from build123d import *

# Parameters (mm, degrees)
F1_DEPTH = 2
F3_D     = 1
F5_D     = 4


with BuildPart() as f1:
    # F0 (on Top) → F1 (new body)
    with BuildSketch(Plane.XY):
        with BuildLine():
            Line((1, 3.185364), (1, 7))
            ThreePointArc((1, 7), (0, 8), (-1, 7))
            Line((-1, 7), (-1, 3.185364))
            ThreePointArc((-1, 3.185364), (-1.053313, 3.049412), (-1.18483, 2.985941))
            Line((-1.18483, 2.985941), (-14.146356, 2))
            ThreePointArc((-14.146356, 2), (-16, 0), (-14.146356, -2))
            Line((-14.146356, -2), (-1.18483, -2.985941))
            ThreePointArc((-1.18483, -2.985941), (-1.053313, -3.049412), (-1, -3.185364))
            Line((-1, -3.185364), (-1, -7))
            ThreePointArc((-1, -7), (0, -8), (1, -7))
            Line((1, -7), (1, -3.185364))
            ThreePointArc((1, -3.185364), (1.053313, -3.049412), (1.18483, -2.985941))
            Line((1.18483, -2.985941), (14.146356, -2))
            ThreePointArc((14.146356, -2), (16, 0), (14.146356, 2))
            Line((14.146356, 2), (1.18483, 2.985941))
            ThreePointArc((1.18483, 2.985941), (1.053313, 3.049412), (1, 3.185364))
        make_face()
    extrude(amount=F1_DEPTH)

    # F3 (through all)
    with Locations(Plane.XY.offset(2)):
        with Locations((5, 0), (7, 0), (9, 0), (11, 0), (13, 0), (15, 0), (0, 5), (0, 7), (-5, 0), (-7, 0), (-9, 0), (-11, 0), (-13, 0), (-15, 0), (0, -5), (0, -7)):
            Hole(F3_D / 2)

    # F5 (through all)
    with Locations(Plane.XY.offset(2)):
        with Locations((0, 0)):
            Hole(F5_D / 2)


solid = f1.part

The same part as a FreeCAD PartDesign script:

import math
import FreeCAD as App
import Part
import Sketcher
from FreeCAD import Vector
Q = App.Units.Quantity

doc = App.newDocument("Part")
body = doc.addObject("PartDesign::Body", "Body")

# Sketch on XY plane
sketch1 = doc.addObject("Sketcher::SketchObject", "Sketch")
body.addObject(sketch1)
sketch1.AttachmentSupport = (doc.XY_Plane, [""])
sketch1.MapMode = "FlatFace"
sketch1.addGeometry([
    Part.LineSegment(Vector(1, 3.185364, 0), Vector(1, 7, 0)),  # 0
    Part.ArcOfCircle(Part.Circle(Vector(0, 7, 0), Vector(0, 0, 1), 1), math.radians(0), math.radians(180)),  # 1
    Part.LineSegment(Vector(-1, 7, 0), Vector(-1, 3.185364, 0)),  # 2
    Part.ArcOfCircle(Part.Circle(Vector(-1.199998, 3.185363, 0), Vector(0, 0, 1), 0.199998), math.radians(-85.650399), math.radians(0.000219)),  # 3
    Part.LineSegment(Vector(-1.18483, 2.985941, 0), Vector(-14.146356, 2, 0)),  # 4
    Part.ArcOfCircle(Part.Circle(Vector(-13.994222, 0, 0), Vector(0, 0, 1), 2.005778), math.radians(94.349936), math.radians(265.650064)),  # 5
    Part.LineSegment(Vector(-14.146356, -2, 0), Vector(-1.18483, -2.985941, 0)),  # 6
    Part.ArcOfCircle(Part.Circle(Vector(-1.199998, -3.185363, 0), Vector(0, 0, 1), 0.199998), math.radians(-0.000219), math.radians(85.650399)),  # 7
    Part.LineSegment(Vector(-1, -3.185364, 0), Vector(-1, -7, 0)),  # 8
    Part.ArcOfCircle(Part.Circle(Vector(0, -7, 0), Vector(0, 0, 1), 1), math.radians(180), math.radians(360)),  # 9
    Part.LineSegment(Vector(1, -7, 0), Vector(1, -3.185364, 0)),  # 10
    Part.ArcOfCircle(Part.Circle(Vector(1.199998, -3.185363, 0), Vector(0, 0, 1), 0.199998), math.radians(94.349601), math.radians(180.000219)),  # 11
    Part.LineSegment(Vector(1.18483, -2.985941, 0), Vector(14.146356, -2, 0)),  # 12
    Part.ArcOfCircle(Part.Circle(Vector(13.994222, 0, 0), Vector(0, 0, 1), 2.005778), math.radians(-85.650064), math.radians(85.650064)),  # 13
    Part.LineSegment(Vector(14.146356, 2, 0), Vector(1.18483, 2.985941, 0)),  # 14
    Part.ArcOfCircle(Part.Circle(Vector(1.199998, 3.185363, 0), Vector(0, 0, 1), 0.199998), math.radians(179.999781), math.radians(265.650399)),  # 15
], False)
sketch1.addConstraint([
    Sketcher.Constraint("Coincident", 0, 2, 1, 1),
    Sketcher.Constraint("Coincident", 1, 2, 2, 1),
    Sketcher.Constraint("Coincident", 2, 2, 3, 2),
    Sketcher.Constraint("Coincident", 3, 1, 4, 1),
    Sketcher.Constraint("Coincident", 4, 2, 5, 1),
    Sketcher.Constraint("Coincident", 5, 2, 6, 1),
    Sketcher.Constraint("Coincident", 6, 2, 7, 2),
    Sketcher.Constraint("Coincident", 7, 1, 8, 1),
    Sketcher.Constraint("Coincident", 8, 2, 9, 1),
    Sketcher.Constraint("Coincident", 9, 2, 10, 1),
    Sketcher.Constraint("Coincident", 10, 2, 11, 2),
    Sketcher.Constraint("Coincident", 11, 1, 12, 1),
    Sketcher.Constraint("Coincident", 12, 2, 13, 1),
    Sketcher.Constraint("Coincident", 13, 2, 14, 1),
    Sketcher.Constraint("Coincident", 14, 2, 15, 2),
    Sketcher.Constraint("Coincident", 15, 1, 0, 1),
    Sketcher.Constraint("Vertical", 0),
    Sketcher.Constraint("Vertical", 2),
    Sketcher.Constraint("Vertical", 8),
    Sketcher.Constraint("Vertical", 10),
    Sketcher.Constraint("PointOnObject", 1, 3, -2),
    Sketcher.Constraint("PointOnObject", 5, 3, -1),
    Sketcher.Constraint("PointOnObject", 9, 3, -2),
    Sketcher.Constraint("PointOnObject", 13, 3, -1),
    Sketcher.Constraint("Radius", 1, Q("1 mm")),
    Sketcher.Constraint("Radius", 9, Q("1 mm")),
    Sketcher.Constraint("Radius", 3, Q("0.199998 mm")),
    Sketcher.Constraint("Radius", 7, Q("0.199998 mm")),
    Sketcher.Constraint("Radius", 11, Q("0.199998 mm")),
    Sketcher.Constraint("Radius", 15, Q("0.199998 mm")),
    Sketcher.Constraint("DistanceY", -1, 1, 1, 3, Q("7 mm")),
    Sketcher.Constraint("DistanceY", 9, 3, -1, 1, Q("7 mm")),
    Sketcher.Constraint("DistanceY", -1, 1, 0, 2, Q("7 mm")),
    Sketcher.Constraint("DistanceY", -1, 1, 1, 2, Q("7 mm")),
    Sketcher.Constraint("DistanceY", -1, 1, 4, 2, Q("2 mm")),
    Sketcher.Constraint("DistanceY", 5, 2, -1, 1, Q("2 mm")),
    Sketcher.Constraint("DistanceY", 8, 2, -1, 1, Q("7 mm")),
    Sketcher.Constraint("DistanceY", 9, 2, -1, 1, Q("7 mm")),
    Sketcher.Constraint("DistanceY", 12, 2, -1, 1, Q("2 mm")),
    Sketcher.Constraint("DistanceY", -1, 1, 13, 2, Q("2 mm")),
    Sketcher.Constraint("Radius", 5, Q("2.005778 mm")),
    Sketcher.Constraint("Radius", 13, Q("2.005778 mm")),
    Sketcher.Constraint("Distance", 4, Q("12.998971 mm")),
    Sketcher.Constraint("Distance", 6, Q("12.998971 mm")),
    Sketcher.Constraint("Distance", 12, Q("12.998971 mm")),
    Sketcher.Constraint("Distance", 14, Q("12.998971 mm")),
    Sketcher.Constraint("DistanceY", 0, 1, 0, 2, Q("3.814636 mm")),
    Sketcher.Constraint("DistanceY", 2, 2, 2, 1, Q("3.814636 mm")),
    Sketcher.Constraint("DistanceY", 8, 2, 8, 1, Q("3.814636 mm")),
    Sketcher.Constraint("DistanceY", 10, 1, 10, 2, Q("3.814636 mm")),
    Sketcher.Constraint("DistanceX", 3, 1, -1, 1, Q("1.18483 mm")),
    Sketcher.Constraint("DistanceY", -1, 1, 3, 1, Q("2.985941 mm")),
    Sketcher.Constraint("DistanceX", 6, 2, -1, 1, Q("1.18483 mm")),
    Sketcher.Constraint("DistanceX", -1, 1, 11, 1, Q("1.18483 mm")),
    Sketcher.Constraint("DistanceY", 11, 1, -1, 1, Q("2.985941 mm")),
    Sketcher.Constraint("DistanceX", -1, 1, 14, 2, Q("1.18483 mm")),
])
pad1 = doc.addObject("PartDesign::Pad", "Pad")
body.addObject(pad1)
pad1.Profile = sketch1
pad1.Length = 2

# Sketch on XY plane
sketch2 = doc.addObject("Sketcher::SketchObject", "Sketch001")
body.addObject(sketch2)
sketch2.AttachmentSupport = (doc.XY_Plane, [""])
sketch2.MapMode = "FlatFace"
sketch2.AttachmentOffset = App.Placement(Vector(0, 0, 2), App.Rotation())
sketch2.addGeometry([
    Part.Circle(Vector(5, 0, 0), Vector(0, 0, 1), 0.5),  # 0
    Part.Circle(Vector(7, 0, 0), Vector(0, 0, 1), 0.5),  # 1
    Part.Circle(Vector(9, 0, 0), Vector(0, 0, 1), 0.5),  # 2
    Part.Circle(Vector(11, 0, 0), Vector(0, 0, 1), 0.5),  # 3
    Part.Circle(Vector(13, 0, 0), Vector(0, 0, 1), 0.5),  # 4
    Part.Circle(Vector(15, 0, 0), Vector(0, 0, 1), 0.5),  # 5
    Part.Circle(Vector(0, 5, 0), Vector(0, 0, 1), 0.5),  # 6
    Part.Circle(Vector(0, 7, 0), Vector(0, 0, 1), 0.5),  # 7
    Part.Circle(Vector(-5, 0, 0), Vector(0, 0, 1), 0.5),  # 8
    Part.Circle(Vector(-7, 0, 0), Vector(0, 0, 1), 0.5),  # 9
    Part.Circle(Vector(-9, 0, 0), Vector(0, 0, 1), 0.5),  # 10
    Part.Circle(Vector(-11, 0, 0), Vector(0, 0, 1), 0.5),  # 11
    Part.Circle(Vector(-13, 0, 0), Vector(0, 0, 1), 0.5),  # 12
    Part.Circle(Vector(-15, 0, 0), Vector(0, 0, 1), 0.5),  # 13
    Part.Circle(Vector(0, -5, 0), Vector(0, 0, 1), 0.5),  # 14
    Part.Circle(Vector(0, -7, 0), Vector(0, 0, 1), 0.5),  # 15
], False)
sketch2.addConstraint([
    Sketcher.Constraint("Equal", 0, 1),
    Sketcher.Constraint("Equal", 1, 2),
    Sketcher.Constraint("Equal", 2, 3),
    Sketcher.Constraint("Equal", 3, 4),
    Sketcher.Constraint("Equal", 4, 5),
    Sketcher.Constraint("Equal", 5, 6),
    Sketcher.Constraint("Equal", 6, 7),
    Sketcher.Constraint("Equal", 7, 8),
    Sketcher.Constraint("Equal", 8, 9),
    Sketcher.Constraint("Equal", 9, 10),
    Sketcher.Constraint("Equal", 10, 11),
    Sketcher.Constraint("Equal", 11, 12),
    Sketcher.Constraint("Equal", 12, 13),
    Sketcher.Constraint("Equal", 13, 14),
    Sketcher.Constraint("Equal", 14, 15),
    Sketcher.Constraint("Symmetric", 0, 3, 8, 3, -1, 1),
    Sketcher.Constraint("Symmetric", 1, 3, 9, 3, -1, 1),
    Sketcher.Constraint("Symmetric", 2, 3, 10, 3, -1, 1),
    Sketcher.Constraint("Symmetric", 3, 3, 11, 3, -1, 1),
    Sketcher.Constraint("Symmetric", 4, 3, 12, 3, -1, 1),
    Sketcher.Constraint("Symmetric", 5, 3, 13, 3, -1, 1),
    Sketcher.Constraint("Symmetric", 6, 3, 14, 3, -1, 1),
    Sketcher.Constraint("Symmetric", 7, 3, 15, 3, -1, 1),
    Sketcher.Constraint("PointOnObject", 0, 3, -1),
    Sketcher.Constraint("PointOnObject", 1, 3, -1),
    Sketcher.Constraint("PointOnObject", 2, 3, -1),
    Sketcher.Constraint("PointOnObject", 3, 3, -1),
    Sketcher.Constraint("PointOnObject", 4, 3, -1),
    Sketcher.Constraint("PointOnObject", 5, 3, -1),
    Sketcher.Constraint("PointOnObject", 6, 3, -2),
    Sketcher.Constraint("PointOnObject", 7, 3, -2),
    Sketcher.Constraint("Diameter", 0, Q("1 mm")),
    Sketcher.Constraint("DistanceX", -1, 1, 0, 3, Q("5 mm")),
    Sketcher.Constraint("DistanceX", -1, 1, 1, 3, Q("7 mm")),
    Sketcher.Constraint("DistanceX", -1, 1, 2, 3, Q("9 mm")),
    Sketcher.Constraint("DistanceX", -1, 1, 3, 3, Q("11 mm")),
    Sketcher.Constraint("DistanceX", -1, 1, 4, 3, Q("13 mm")),
    Sketcher.Constraint("DistanceX", -1, 1, 5, 3, Q("15 mm")),
    Sketcher.Constraint("DistanceY", -1, 1, 6, 3, Q("5 mm")),
    Sketcher.Constraint("DistanceY", -1, 1, 7, 3, Q("7 mm")),
])
doc.recompute()
hole = doc.addObject("PartDesign::Hole", "Hole")
body.addObject(hole)
hole.Profile = sketch2
hole.ThreadType = "None"
hole.Diameter = 1
hole.DepthType = "ThroughAll"

# Sketch on XY plane
sketch3 = doc.addObject("Sketcher::SketchObject", "Sketch002")
body.addObject(sketch3)
sketch3.AttachmentSupport = (doc.XY_Plane, [""])
sketch3.MapMode = "FlatFace"
sketch3.AttachmentOffset = App.Placement(Vector(0, 0, 2), App.Rotation())
sketch3.addGeometry(Part.Circle(Vector(0, 0, 0), Vector(0, 0, 1), 2), False)
sketch3.addConstraint([
    Sketcher.Constraint("Coincident", 0, 3, -1, 1),
    Sketcher.Constraint("Diameter", 0, Q("4 mm")),
])
doc.recompute()
hole2 = doc.addObject("PartDesign::Hole", "Hole001")
body.addObject(hole2)
hole2.Profile = sketch3
hole2.ThreadType = "None"
hole2.Diameter = 4
hole2.DepthType = "ThroughAll"

doc.recompute()
